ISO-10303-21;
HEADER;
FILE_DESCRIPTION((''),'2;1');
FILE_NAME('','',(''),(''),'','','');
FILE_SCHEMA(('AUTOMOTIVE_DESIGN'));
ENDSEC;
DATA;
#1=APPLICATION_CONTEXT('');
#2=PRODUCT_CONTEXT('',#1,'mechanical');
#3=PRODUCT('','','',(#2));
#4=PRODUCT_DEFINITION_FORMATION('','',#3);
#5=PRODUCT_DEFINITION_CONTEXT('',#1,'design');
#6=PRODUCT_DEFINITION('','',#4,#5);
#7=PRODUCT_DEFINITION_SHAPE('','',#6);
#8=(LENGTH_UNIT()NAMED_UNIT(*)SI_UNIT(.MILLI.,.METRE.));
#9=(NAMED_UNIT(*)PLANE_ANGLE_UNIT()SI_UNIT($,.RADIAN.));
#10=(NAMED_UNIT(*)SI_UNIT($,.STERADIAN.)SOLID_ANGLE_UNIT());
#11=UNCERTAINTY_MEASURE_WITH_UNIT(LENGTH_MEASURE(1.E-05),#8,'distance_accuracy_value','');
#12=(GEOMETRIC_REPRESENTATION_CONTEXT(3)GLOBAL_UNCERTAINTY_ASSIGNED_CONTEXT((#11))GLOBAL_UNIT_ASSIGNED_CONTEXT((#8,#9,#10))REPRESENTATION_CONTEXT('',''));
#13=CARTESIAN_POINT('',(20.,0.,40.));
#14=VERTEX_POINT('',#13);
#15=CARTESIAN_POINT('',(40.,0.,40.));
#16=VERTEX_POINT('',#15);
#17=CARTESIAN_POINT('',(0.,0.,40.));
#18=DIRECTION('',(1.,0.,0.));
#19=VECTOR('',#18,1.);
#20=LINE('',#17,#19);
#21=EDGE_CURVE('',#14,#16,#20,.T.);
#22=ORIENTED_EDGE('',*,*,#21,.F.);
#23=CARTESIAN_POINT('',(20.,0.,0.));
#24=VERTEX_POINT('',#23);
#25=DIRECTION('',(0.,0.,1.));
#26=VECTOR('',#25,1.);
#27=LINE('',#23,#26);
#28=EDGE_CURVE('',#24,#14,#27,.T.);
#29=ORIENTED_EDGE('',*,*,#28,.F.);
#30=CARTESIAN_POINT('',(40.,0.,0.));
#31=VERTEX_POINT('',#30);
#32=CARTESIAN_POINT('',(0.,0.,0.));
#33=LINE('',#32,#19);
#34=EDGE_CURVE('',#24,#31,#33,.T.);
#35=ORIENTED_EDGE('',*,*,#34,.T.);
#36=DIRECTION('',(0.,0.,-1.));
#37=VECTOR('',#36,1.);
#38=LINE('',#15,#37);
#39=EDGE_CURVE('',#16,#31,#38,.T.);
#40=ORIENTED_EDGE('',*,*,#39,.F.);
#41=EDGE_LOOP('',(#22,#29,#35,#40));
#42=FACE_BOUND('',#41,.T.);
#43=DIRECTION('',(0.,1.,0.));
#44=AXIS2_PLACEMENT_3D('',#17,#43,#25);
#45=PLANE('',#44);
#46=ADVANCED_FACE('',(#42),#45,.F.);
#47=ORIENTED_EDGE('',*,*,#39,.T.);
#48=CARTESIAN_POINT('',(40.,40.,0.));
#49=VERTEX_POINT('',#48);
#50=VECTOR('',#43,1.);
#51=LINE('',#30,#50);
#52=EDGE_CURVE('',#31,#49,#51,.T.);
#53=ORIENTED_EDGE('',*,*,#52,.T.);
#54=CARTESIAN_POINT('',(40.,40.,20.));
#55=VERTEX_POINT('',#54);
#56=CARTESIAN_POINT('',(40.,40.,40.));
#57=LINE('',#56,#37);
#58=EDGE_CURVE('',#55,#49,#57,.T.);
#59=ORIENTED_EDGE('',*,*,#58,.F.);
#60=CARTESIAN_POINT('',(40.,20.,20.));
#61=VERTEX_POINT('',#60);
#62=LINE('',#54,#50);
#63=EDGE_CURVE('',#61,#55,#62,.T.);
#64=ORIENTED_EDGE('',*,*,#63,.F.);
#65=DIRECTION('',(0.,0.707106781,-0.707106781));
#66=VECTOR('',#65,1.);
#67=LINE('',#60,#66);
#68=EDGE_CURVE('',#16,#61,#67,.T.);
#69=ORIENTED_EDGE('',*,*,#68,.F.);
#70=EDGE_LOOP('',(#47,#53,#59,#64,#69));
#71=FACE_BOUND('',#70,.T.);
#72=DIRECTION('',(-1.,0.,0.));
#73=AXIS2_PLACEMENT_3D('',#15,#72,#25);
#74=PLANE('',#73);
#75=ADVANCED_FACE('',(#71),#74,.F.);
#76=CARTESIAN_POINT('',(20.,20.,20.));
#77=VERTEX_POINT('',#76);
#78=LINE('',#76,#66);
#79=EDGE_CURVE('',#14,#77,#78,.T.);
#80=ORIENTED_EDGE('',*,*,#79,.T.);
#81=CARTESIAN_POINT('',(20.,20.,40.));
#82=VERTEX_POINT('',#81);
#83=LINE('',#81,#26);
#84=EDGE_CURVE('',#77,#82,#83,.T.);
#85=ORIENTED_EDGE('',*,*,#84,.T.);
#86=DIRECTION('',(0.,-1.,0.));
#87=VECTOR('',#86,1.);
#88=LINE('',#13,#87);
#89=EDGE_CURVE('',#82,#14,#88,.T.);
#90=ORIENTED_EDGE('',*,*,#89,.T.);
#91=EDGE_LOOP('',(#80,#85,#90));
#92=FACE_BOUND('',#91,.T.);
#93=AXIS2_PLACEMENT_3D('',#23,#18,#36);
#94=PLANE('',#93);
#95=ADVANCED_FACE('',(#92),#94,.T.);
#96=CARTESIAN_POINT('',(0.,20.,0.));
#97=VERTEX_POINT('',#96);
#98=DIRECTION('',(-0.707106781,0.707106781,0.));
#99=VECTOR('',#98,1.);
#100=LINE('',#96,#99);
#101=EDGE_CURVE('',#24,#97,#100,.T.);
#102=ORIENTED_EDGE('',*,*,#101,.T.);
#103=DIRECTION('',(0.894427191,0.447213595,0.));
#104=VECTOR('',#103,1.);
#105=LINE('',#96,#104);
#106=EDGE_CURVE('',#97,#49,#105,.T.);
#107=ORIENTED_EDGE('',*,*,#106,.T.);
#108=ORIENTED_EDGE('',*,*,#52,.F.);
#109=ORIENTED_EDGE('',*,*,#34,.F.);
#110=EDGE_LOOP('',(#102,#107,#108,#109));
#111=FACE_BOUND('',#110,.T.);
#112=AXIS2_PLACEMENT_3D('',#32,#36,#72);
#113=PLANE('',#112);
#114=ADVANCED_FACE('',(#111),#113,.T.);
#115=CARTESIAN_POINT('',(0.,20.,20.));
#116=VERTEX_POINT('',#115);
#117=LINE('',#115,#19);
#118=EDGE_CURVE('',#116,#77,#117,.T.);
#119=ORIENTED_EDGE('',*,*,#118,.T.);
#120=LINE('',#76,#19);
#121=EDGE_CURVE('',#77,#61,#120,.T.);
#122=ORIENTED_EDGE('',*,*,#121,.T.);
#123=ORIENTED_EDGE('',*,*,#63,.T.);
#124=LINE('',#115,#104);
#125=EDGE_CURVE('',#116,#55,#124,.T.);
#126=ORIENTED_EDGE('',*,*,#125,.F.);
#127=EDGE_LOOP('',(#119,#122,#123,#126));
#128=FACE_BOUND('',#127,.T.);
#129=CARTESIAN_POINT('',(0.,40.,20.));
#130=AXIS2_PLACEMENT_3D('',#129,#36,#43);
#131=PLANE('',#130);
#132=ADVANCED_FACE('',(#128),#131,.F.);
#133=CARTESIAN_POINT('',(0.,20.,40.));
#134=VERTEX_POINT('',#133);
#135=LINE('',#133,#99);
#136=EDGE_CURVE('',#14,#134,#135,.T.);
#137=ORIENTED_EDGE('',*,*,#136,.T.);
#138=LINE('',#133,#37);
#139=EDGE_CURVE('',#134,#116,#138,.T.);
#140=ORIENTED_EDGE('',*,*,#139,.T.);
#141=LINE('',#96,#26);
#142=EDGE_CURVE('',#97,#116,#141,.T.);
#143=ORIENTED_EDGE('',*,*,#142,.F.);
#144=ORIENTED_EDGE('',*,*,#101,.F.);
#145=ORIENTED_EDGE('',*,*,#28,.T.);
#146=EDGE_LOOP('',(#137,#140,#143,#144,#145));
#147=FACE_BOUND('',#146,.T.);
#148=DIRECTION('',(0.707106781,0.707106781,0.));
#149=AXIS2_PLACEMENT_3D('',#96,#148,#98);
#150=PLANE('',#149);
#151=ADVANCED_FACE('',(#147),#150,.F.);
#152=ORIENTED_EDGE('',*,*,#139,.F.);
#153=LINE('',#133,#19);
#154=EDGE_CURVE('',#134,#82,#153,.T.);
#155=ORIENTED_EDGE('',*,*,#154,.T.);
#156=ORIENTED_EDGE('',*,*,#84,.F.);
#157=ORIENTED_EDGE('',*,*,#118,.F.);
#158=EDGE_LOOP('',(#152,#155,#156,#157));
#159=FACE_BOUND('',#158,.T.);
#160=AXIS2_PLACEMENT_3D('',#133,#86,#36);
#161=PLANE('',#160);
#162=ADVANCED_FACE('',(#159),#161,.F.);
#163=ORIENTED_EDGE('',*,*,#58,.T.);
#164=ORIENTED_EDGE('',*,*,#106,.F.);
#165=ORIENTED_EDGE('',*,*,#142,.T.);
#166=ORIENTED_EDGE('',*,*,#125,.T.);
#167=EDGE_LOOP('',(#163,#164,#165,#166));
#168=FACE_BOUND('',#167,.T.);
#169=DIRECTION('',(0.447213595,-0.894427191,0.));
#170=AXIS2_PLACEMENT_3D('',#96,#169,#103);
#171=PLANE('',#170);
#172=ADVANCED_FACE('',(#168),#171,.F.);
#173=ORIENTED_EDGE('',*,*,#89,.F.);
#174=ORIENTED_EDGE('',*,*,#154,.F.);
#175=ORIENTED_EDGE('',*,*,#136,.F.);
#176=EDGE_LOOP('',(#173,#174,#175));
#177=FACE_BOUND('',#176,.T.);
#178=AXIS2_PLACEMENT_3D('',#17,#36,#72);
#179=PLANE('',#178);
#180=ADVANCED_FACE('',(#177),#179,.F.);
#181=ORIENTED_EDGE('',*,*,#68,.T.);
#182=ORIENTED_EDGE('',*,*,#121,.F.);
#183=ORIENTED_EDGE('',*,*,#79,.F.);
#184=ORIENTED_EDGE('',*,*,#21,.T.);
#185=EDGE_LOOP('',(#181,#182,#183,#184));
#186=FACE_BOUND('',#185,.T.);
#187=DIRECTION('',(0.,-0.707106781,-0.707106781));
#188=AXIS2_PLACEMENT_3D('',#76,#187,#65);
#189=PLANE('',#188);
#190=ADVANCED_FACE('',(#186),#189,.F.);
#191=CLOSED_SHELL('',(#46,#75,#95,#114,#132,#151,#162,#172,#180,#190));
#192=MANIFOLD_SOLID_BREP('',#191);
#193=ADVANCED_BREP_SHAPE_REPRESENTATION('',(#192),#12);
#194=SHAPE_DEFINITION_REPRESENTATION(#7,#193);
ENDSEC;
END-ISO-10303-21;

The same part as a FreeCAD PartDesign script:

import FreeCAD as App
import Part
import Sketcher
from FreeCAD import Vector

doc = App.newDocument("Part")
body = doc.addObject("PartDesign::Body", "Body")

# Sketch on XY plane
sketch1 = doc.addObject("Sketcher::SketchObject", "Sketch")
body.addObject(sketch1)
sketch1.AttachmentSupport = (doc.XY_Plane, [""])
sketch1.MapMode = "FlatFace"
sketch1.addGeometry(Part.LineSegment(Vector(0, 40, 0), Vector(0, 0, 0)), False)
sketch1.addGeometry(Part.LineSegment(Vector(0, 0, 0), Vector(40, 0, 0)), False)
sketch1.addGeometry(Part.LineSegment(Vector(40, 0, 0), Vector(40, 40, 0)), False)
sketch1.addGeometry(Part.LineSegment(Vector(40, 40, 0), Vector(0, 40, 0)), False)
sketch1.addConstraint(Sketcher.Constraint("Coincident", 0, 2, 1, 1))
sketch1.addConstraint(Sketcher.Constraint("Coincident", 1, 2, 2, 1))
sketch1.addConstraint(Sketcher.Constraint("Coincident", 2, 2, 3, 1))
sketch1.addConstraint(Sketcher.Constraint("Coincident", 3, 2, 0, 1))
sketch1.addConstraint(Sketcher.Constraint("Vertical", 0))
sketch1.addConstraint(Sketcher.Constraint("Horizontal", 1))
sketch1.addConstraint(Sketcher.Constraint("Vertical", 2))
sketch1.addConstraint(Sketcher.Constraint("Horizontal", 3))
sketch1.addConstraint(Sketcher.Constraint("Coincident", 0, 2, -1, 1))
sketch1.addConstraint(Sketcher.Constraint("Equal", 3, 0))
sketch1.addConstraint(Sketcher.Constraint("DistanceX", 1, 1, 1, 2, 40.0))
pad1 = doc.addObject("PartDesign::Pad", "Pad")
body.addObject(pad1)
pad1.Profile = sketch1
pad1.Length = 40

# Sketch on XY plane
sketch2 = doc.addObject("Sketcher::SketchObject", "Sketch001")
body.addObject(sketch2)
sketch2.AttachmentSupport = (doc.XY_Plane, [""])
sketch2.MapMode = "FlatFace"
sketch2.AttachmentOffset = App.Placement(Vector(0, 0, 40), App.Rotation())
sketch2.addGeometry(Part.LineSegment(Vector(40, 40, 0), Vector(0, 40, 0)), False)
sketch2.addGeometry(Part.LineSegment(Vector(0, 40, 0), Vector(0, 20, 0)), False)
sketch2.addGeometry(Part.LineSegment(Vector(0, 20, 0), Vector(40, 40, 0)), False)
sketch2.addConstraint(Sketcher.Constraint("Coincident", 0, 2, 1, 1))
sketch2.addConstraint(Sketcher.Constraint("Coincident", 1, 2, 2, 1))
sketch2.addConstraint(Sketcher.Constraint("Coincident", 2, 2, 0, 1))
sketch2.addConstraint(Sketcher.Constraint("Horizontal", 0))
sketch2.addConstraint(Sketcher.Constraint("Vertical", 1))
sketch2.addConstraint(Sketcher.Constraint("PointOnObject", 0, 2, -2))
sketch2.addConstraint(Sketcher.Constraint("DistanceX", 0, 2, 0, 1, 40.0))
sketch2.addConstraint(Sketcher.Constraint("DistanceY", 1, 2, 1, 1, 20.0))
sketch2.addConstraint(Sketcher.Constraint("DistanceY", -1, 1, 0, 2, 40.0))
pocket1 = doc.addObject("PartDesign::Pocket", "Pocket")
body.addObject(pocket1)
pocket1.Profile = sketch2
pocket1.Length = 40

# Sketch on YZ plane
sketch3 = doc.addObject("Sketcher::SketchObject", "Sketch002")
body.addObject(sketch3)
sketch3.AttachmentSupport = (doc.YZ_Plane, [""])
sketch3.MapMode = "FlatFace"
sketch3.AttachmentOffset = App.Placement(Vector(0, 0, 40), App.Rotation())
sketch3.addGeometry(Part.LineSegment(Vector(40, 40, 0), Vector(20, 40, 0)), False)
sketch3.addGeometry(Part.LineSegment(Vector(20, 40, 0), Vector(20, 20, 0)), False)
sketch3.addGeometry(Part.LineSegment(Vector(20, 20, 0), Vector(40, 20, 0)), False)
sketch3.addGeometry(Part.LineSegment(Vector(40, 20, 0), Vector(40, 40, 0)), False)
sketch3.addConstraint(Sketcher.Constraint("Coincident", 0, 2, 1, 1))
sketch3.addConstraint(Sketcher.Constraint("Coincident", 1, 2, 2, 1))
sketch3.addConstraint(Sketcher.Constraint("Coincident", 2, 2, 3, 1))
sketch3.addConstraint(Sketcher.Constraint("Coincident", 3, 2, 0, 1))
sketch3.addConstraint(Sketcher.Constraint("Horizontal", 0))
sketch3.addConstraint(Sketcher.Constraint("Vertical", 1))
sketch3.addConstraint(Sketcher.Constraint("Horizontal", 2))
sketch3.addConstraint(Sketcher.Constraint("Vertical", 3))
sketch3.addConstraint(Sketcher.Constraint("Equal", 2, 1))
sketch3.addConstraint(Sketcher.Constraint("DistanceX", 0, 2, 0, 1, 20.0))
sketch3.addConstraint(Sketcher.Constraint("DistanceX", -1, 1, 0, 2, 20.0))
sketch3.addConstraint(Sketcher.Constraint("DistanceY", -1, 1, 0, 2, 40.0))
pocket2 = doc.addObject("PartDesign::Pocket", "Pocket001")
body.addObject(pocket2)
pocket2.Profile = sketch3
pocket2.Length = 40

# Sketch on XY plane
sketch4 = doc.addObject("Sketcher::SketchObject", "Sketch003")
body.addObject(sketch4)
sketch4.AttachmentSupport = (doc.XY_Plane, [""])
sketch4.MapMode = "FlatFace"
sketch4.AttachmentOffset = App.Placement(Vector(0, 0, 40), App.Rotation())
sketch4.addGeometry(Part.LineSegment(Vector(20, 0, 0), Vector(0, 20, 0)), False)
sketch4.addGeometry(Part.LineSegment(Vector(0, 20, 0), Vector(0, 0, 0)), False)
sketch4.addGeometry(Part.LineSegment(Vector(0, 0, 0), Vector(20, 0, 0)), False)
sketch4.addConstraint(Sketcher.Constraint("Coincident", 0, 2, 1, 1))
sketch4.addConstraint(Sketcher.Constraint("Coincident", 1, 2, 2, 1))
sketch4.addConstraint(Sketcher.Constraint("Coincident", 2, 2, 0, 1))
sketch4.addConstraint(Sketcher.Constraint("Vertical", 1))
sketch4.addConstraint(Sketcher.Constraint("Horizontal", 2))
sketch4.addConstraint(Sketcher.Constraint("Coincident", 1, 2, -1, 1))
sketch4.addConstraint(Sketcher.Constraint("Equal", 2, 1))
sketch4.addConstraint(Sketcher.Constraint("DistanceX", 2, 1, 2, 2, 20.0))
pocket3 = doc.addObject("PartDesign::Pocket", "Pocket002")
body.addObject(pocket3)
pocket3.Profile = sketch4
pocket3.Length = 40

# Sketch on YZ plane
sketch5 = doc.addObject("Sketcher::SketchObject", "Sketch004")
body.addObject(sketch5)
sketch5.AttachmentSupport = (doc.YZ_Plane, [""])
sketch5.MapMode = "FlatFace"
sketch5.AttachmentOffset = App.Placement(Vector(0, 0, 40), App.Rotation())
sketch5.addGeometry(Part.LineSegment(Vector(0, 40, 0), Vector(20, 20, 0)), False)
sketch5.addGeometry(Part.LineSegment(Vector(20, 20, 0), Vector(20, 40, 0)), False)
sketch5.addGeometry(Part.LineSegment(Vector(20, 40, 0), Vector(0, 40, 0)), False)
sketch5.addConstraint(Sketcher.Constraint("Coincident", 0, 2, 1, 1))
sketch5.addConstraint(Sketcher.Constraint("Coincident", 1, 2, 2, 1))
sketch5.addConstraint(Sketcher.Constraint("Coincident", 2, 2, 0, 1))
sketch5.addConstraint(Sketcher.Constraint("Vertical", 1))
sketch5.addConstraint(Sketcher.Constraint("Horizontal", 2))
sketch5.addConstraint(Sketcher.Constraint("PointOnObject", 2, 2, -2))
sketch5.addConstraint(Sketcher.Constraint("Equal", 2, 1))
sketch5.addConstraint(Sketcher.Constraint("DistanceX", 2, 2, 2, 1, 20.0))
sketch5.addConstraint(Sketcher.Constraint("DistanceY", -1, 1, 0, 2, 20.0))
pocket4 = doc.addObject("PartDesign::Pocket", "Pocket003")
body.addObject(pocket4)
pocket4.Profile = sketch5
pocket4.Length = 20

doc.recompute()
